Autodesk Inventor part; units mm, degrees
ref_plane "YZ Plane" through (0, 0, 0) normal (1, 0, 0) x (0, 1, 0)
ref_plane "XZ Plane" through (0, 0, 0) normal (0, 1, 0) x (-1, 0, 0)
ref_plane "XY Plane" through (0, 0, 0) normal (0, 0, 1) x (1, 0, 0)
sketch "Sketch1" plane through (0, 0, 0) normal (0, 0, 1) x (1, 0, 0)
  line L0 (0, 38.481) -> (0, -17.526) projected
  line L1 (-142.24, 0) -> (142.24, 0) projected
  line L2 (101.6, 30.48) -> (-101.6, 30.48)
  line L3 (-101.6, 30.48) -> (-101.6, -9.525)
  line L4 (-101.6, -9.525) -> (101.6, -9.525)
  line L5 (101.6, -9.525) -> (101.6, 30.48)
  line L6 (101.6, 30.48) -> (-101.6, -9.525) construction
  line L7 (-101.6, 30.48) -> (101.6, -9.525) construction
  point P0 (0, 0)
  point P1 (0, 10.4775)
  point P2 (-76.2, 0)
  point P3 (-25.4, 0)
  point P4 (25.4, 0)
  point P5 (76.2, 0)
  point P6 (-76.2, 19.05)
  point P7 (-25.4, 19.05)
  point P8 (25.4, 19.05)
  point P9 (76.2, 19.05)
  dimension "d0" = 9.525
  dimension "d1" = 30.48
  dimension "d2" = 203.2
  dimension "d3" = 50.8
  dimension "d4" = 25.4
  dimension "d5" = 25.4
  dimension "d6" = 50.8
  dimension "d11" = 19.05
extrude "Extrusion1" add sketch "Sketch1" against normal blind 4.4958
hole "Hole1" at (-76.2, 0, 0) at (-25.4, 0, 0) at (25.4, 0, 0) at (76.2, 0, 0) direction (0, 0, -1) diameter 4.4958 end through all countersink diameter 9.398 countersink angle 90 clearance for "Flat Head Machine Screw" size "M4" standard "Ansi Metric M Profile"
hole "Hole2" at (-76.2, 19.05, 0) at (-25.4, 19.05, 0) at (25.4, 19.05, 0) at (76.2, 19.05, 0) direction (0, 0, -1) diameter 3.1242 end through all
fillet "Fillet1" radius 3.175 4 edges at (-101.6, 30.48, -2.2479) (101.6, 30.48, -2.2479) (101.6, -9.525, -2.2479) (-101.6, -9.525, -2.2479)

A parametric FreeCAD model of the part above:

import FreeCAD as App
import Part
import Sketcher

V = App.Vector
Q = App.Units.Quantity


def edges_at(feature, points):
    """Names of the edges that pass closest to the given points."""
    edges = feature.Shape.Edges
    near = lambda p: min(range(len(edges)), key=lambda i: edges[i].distToShape(Part.Vertex(*p))[0])
    return sorted({f"Edge{near(p) + 1}" for p in points})

doc = App.newDocument("Part")
body = doc.addObject("PartDesign::Body", "Body")

# Sketch on XY plane
sketch1 = body.newObject("Sketcher::SketchObject", "Sketch")
sketch1.AttachmentSupport = (doc.getObject("XY_Plane"), [""])
sketch1.MapMode = "FlatFace"
sketch1.addGeometry(Part.LineSegment(V(102, 30, 0), V(-102, 30, 0)), False)
sketch1.addGeometry(Part.LineSegment(V(-102, 30, 0), V(-102, -10, 0)), False)
sketch1.addGeometry(Part.LineSegment(V(-102, -10, 0), V(102, -10, 0)), False)
sketch1.addGeometry(Part.LineSegment(V(102, -10, 0), V(102, 30, 0)), False)
sketch1.addConstraint(Sketcher.Constraint("Coincident", 0, 2, 1, 1))
sketch1.addConstraint(Sketcher.Constraint("Coincident", 1, 2, 2, 1))
sketch1.addConstraint(Sketcher.Constraint("Coincident", 2, 2, 3, 1))
sketch1.addConstraint(Sketcher.Constraint("Coincident", 3, 2, 0, 1))
sketch1.addConstraint(Sketcher.Constraint("Horizontal", 0))
sketch1.addConstraint(Sketcher.Constraint("Vertical", 1))
sketch1.addConstraint(Sketcher.Constraint("Horizontal", 2))
sketch1.addConstraint(Sketcher.Constraint("Vertical", 3))
sketch1.addConstraint(Sketcher.Constraint("DistanceX", 0, 2, 0, 1, Q("8 in")))
sketch1.addConstraint(Sketcher.Constraint("DistanceY", -1, 1, 0, 2, Q("1.2 in")))
sketch1.addConstraint(Sketcher.Constraint("DistanceY", 1, 2, -1, 1, Q("0.375 in")))
sketch1.addConstraint(Sketcher.Constraint("DistanceX", 0, 2, -1, 1, Q("4 in")))
pad1 = body.newObject("PartDesign::Pad", "Pad")
pad1.Profile = sketch1
pad1.Length = Q("0.177 in")
pad1.Reversed = True

# Sketch on XY plane
sketch2 = body.newObject("Sketcher::SketchObject", "Sketch001")
sketch2.AttachmentSupport = (doc.getObject("XY_Plane"), [""])
sketch2.MapMode = "FlatFace"
sketch2.addGeometry(Part.Circle(V(-76.2, 0, 0), V(0, 0, 1), 2.2), False)
sketch2.addGeometry(Part.Circle(V(-25.4, 0, 0), V(0, 0, 1), 2.2), False)
sketch2.addGeometry(Part.Circle(V(25.4, 0, 0), V(0, 0, 1), 2.2), False)
sketch2.addGeometry(Part.Circle(V(76.2, 0, 0), V(0, 0, 1), 2.2), False)
sketch2.addConstraint(Sketcher.Constraint("Equal", 0, 1))
sketch2.addConstraint(Sketcher.Constraint("Equal", 1, 2))
sketch2.addConstraint(Sketcher.Constraint("Equal", 2, 3))
sketch2.addConstraint(Sketcher.Constraint("Symmetric", 1, 3, 2, 3, -1, 1))
sketch2.addConstraint(Sketcher.Constraint("Symmetric", 0, 3, 3, 3, -1, 1))
sketch2.addConstraint(Sketcher.Constraint("PointOnObject", 0, 3, -1))
sketch2.addConstraint(Sketcher.Constraint("PointOnObject", 1, 3, -1))
sketch2.addConstraint(Sketcher.Constraint("Diameter", 0, Q("0.177 in")))
sketch2.addConstraint(Sketcher.Constraint("DistanceX", 0, 3, -1, 1, Q("3 in")))
sketch2.addConstraint(Sketcher.Constraint("DistanceX", 1, 3, -1, 1, Q("1 in")))
doc.recompute()
hole = body.newObject("PartDesign::Hole", "Hole")
hole.Profile = sketch2
hole.ThreadType = "None"
hole.Diameter = Q("0.177 in")
hole.DepthType = "ThroughAll"
hole.HoleCutType = "Countersink"
hole.HoleCutDiameter = Q("0.37 in")
hole.HoleCutCountersinkAngle = 90

# Sketch on XY plane
sketch3 = body.newObject("Sketcher::SketchObject", "Sketch002")
sketch3.AttachmentSupport = (doc.getObject("XY_Plane"), [""])
sketch3.MapMode = "FlatFace"
sketch3.addGeometry(Part.Circle(V(-76.2, 19.1, 0), V(0, 0, 1), 1.6), False)
sketch3.addGeometry(Part.Circle(V(-25.4, 19.1, 0), V(0, 0, 1), 1.6), False)
sketch3.addGeometry(Part.Circle(V(25.4, 19.1, 0), V(0, 0, 1), 1.6), False)
sketch3.addGeometry(Part.Circle(V(76.2, 19.1, 0), V(0, 0, 1), 1.6), False)
sketch3.addConstraint(Sketcher.Constraint("Equal", 0, 1))
sketch3.addConstraint(Sketcher.Constraint("Equal", 1, 2))
sketch3.addConstraint(Sketcher.Constraint("Equal", 2, 3))
sketch3.addConstraint(Sketcher.Constraint("Symmetric", 1, 3, 2, 3, -2))
sketch3.addConstraint(Sketcher.Constraint("Symmetric", 0, 3, 3, 3, -2))
sketch3.addConstraint(Sketcher.Constraint("Horizontal", 0, 3, 1, 3))
sketch3.addConstraint(Sketcher.Constraint("Diameter", 0, Q("0.123 in")))
sketch3.addConstraint(Sketcher.Constraint("DistanceX", 0, 3, -1, 1, Q("3 in")))
sketch3.addConstraint(Sketcher.Constraint("DistanceX", 1, 3, -1, 1, Q("1 in")))
sketch3.addConstraint(Sketcher.Constraint("DistanceY", -1, 1, 0, 3, Q("0.75 in")))
doc.recompute()
hole2 = body.newObject("PartDesign::Hole", "Hole001")
hole2.Profile = sketch3
hole2.ThreadType = "None"
hole2.Diameter = Q("0.123 in")
hole2.DepthType = "ThroughAll"
doc.recompute()

fillet = body.newObject("PartDesign::Fillet", "Fillet")
fillet.Base = (hole2, edges_at(hole2, [
    (-101.6, 30.48, -2.248),
    (101.6, 30.48, -2.248),
    (101.6, -9.525, -2.248),
    (-101.6, -9.525, -2.248),
]))
fillet.Radius = Q("0.125 in")

doc.recompute()
